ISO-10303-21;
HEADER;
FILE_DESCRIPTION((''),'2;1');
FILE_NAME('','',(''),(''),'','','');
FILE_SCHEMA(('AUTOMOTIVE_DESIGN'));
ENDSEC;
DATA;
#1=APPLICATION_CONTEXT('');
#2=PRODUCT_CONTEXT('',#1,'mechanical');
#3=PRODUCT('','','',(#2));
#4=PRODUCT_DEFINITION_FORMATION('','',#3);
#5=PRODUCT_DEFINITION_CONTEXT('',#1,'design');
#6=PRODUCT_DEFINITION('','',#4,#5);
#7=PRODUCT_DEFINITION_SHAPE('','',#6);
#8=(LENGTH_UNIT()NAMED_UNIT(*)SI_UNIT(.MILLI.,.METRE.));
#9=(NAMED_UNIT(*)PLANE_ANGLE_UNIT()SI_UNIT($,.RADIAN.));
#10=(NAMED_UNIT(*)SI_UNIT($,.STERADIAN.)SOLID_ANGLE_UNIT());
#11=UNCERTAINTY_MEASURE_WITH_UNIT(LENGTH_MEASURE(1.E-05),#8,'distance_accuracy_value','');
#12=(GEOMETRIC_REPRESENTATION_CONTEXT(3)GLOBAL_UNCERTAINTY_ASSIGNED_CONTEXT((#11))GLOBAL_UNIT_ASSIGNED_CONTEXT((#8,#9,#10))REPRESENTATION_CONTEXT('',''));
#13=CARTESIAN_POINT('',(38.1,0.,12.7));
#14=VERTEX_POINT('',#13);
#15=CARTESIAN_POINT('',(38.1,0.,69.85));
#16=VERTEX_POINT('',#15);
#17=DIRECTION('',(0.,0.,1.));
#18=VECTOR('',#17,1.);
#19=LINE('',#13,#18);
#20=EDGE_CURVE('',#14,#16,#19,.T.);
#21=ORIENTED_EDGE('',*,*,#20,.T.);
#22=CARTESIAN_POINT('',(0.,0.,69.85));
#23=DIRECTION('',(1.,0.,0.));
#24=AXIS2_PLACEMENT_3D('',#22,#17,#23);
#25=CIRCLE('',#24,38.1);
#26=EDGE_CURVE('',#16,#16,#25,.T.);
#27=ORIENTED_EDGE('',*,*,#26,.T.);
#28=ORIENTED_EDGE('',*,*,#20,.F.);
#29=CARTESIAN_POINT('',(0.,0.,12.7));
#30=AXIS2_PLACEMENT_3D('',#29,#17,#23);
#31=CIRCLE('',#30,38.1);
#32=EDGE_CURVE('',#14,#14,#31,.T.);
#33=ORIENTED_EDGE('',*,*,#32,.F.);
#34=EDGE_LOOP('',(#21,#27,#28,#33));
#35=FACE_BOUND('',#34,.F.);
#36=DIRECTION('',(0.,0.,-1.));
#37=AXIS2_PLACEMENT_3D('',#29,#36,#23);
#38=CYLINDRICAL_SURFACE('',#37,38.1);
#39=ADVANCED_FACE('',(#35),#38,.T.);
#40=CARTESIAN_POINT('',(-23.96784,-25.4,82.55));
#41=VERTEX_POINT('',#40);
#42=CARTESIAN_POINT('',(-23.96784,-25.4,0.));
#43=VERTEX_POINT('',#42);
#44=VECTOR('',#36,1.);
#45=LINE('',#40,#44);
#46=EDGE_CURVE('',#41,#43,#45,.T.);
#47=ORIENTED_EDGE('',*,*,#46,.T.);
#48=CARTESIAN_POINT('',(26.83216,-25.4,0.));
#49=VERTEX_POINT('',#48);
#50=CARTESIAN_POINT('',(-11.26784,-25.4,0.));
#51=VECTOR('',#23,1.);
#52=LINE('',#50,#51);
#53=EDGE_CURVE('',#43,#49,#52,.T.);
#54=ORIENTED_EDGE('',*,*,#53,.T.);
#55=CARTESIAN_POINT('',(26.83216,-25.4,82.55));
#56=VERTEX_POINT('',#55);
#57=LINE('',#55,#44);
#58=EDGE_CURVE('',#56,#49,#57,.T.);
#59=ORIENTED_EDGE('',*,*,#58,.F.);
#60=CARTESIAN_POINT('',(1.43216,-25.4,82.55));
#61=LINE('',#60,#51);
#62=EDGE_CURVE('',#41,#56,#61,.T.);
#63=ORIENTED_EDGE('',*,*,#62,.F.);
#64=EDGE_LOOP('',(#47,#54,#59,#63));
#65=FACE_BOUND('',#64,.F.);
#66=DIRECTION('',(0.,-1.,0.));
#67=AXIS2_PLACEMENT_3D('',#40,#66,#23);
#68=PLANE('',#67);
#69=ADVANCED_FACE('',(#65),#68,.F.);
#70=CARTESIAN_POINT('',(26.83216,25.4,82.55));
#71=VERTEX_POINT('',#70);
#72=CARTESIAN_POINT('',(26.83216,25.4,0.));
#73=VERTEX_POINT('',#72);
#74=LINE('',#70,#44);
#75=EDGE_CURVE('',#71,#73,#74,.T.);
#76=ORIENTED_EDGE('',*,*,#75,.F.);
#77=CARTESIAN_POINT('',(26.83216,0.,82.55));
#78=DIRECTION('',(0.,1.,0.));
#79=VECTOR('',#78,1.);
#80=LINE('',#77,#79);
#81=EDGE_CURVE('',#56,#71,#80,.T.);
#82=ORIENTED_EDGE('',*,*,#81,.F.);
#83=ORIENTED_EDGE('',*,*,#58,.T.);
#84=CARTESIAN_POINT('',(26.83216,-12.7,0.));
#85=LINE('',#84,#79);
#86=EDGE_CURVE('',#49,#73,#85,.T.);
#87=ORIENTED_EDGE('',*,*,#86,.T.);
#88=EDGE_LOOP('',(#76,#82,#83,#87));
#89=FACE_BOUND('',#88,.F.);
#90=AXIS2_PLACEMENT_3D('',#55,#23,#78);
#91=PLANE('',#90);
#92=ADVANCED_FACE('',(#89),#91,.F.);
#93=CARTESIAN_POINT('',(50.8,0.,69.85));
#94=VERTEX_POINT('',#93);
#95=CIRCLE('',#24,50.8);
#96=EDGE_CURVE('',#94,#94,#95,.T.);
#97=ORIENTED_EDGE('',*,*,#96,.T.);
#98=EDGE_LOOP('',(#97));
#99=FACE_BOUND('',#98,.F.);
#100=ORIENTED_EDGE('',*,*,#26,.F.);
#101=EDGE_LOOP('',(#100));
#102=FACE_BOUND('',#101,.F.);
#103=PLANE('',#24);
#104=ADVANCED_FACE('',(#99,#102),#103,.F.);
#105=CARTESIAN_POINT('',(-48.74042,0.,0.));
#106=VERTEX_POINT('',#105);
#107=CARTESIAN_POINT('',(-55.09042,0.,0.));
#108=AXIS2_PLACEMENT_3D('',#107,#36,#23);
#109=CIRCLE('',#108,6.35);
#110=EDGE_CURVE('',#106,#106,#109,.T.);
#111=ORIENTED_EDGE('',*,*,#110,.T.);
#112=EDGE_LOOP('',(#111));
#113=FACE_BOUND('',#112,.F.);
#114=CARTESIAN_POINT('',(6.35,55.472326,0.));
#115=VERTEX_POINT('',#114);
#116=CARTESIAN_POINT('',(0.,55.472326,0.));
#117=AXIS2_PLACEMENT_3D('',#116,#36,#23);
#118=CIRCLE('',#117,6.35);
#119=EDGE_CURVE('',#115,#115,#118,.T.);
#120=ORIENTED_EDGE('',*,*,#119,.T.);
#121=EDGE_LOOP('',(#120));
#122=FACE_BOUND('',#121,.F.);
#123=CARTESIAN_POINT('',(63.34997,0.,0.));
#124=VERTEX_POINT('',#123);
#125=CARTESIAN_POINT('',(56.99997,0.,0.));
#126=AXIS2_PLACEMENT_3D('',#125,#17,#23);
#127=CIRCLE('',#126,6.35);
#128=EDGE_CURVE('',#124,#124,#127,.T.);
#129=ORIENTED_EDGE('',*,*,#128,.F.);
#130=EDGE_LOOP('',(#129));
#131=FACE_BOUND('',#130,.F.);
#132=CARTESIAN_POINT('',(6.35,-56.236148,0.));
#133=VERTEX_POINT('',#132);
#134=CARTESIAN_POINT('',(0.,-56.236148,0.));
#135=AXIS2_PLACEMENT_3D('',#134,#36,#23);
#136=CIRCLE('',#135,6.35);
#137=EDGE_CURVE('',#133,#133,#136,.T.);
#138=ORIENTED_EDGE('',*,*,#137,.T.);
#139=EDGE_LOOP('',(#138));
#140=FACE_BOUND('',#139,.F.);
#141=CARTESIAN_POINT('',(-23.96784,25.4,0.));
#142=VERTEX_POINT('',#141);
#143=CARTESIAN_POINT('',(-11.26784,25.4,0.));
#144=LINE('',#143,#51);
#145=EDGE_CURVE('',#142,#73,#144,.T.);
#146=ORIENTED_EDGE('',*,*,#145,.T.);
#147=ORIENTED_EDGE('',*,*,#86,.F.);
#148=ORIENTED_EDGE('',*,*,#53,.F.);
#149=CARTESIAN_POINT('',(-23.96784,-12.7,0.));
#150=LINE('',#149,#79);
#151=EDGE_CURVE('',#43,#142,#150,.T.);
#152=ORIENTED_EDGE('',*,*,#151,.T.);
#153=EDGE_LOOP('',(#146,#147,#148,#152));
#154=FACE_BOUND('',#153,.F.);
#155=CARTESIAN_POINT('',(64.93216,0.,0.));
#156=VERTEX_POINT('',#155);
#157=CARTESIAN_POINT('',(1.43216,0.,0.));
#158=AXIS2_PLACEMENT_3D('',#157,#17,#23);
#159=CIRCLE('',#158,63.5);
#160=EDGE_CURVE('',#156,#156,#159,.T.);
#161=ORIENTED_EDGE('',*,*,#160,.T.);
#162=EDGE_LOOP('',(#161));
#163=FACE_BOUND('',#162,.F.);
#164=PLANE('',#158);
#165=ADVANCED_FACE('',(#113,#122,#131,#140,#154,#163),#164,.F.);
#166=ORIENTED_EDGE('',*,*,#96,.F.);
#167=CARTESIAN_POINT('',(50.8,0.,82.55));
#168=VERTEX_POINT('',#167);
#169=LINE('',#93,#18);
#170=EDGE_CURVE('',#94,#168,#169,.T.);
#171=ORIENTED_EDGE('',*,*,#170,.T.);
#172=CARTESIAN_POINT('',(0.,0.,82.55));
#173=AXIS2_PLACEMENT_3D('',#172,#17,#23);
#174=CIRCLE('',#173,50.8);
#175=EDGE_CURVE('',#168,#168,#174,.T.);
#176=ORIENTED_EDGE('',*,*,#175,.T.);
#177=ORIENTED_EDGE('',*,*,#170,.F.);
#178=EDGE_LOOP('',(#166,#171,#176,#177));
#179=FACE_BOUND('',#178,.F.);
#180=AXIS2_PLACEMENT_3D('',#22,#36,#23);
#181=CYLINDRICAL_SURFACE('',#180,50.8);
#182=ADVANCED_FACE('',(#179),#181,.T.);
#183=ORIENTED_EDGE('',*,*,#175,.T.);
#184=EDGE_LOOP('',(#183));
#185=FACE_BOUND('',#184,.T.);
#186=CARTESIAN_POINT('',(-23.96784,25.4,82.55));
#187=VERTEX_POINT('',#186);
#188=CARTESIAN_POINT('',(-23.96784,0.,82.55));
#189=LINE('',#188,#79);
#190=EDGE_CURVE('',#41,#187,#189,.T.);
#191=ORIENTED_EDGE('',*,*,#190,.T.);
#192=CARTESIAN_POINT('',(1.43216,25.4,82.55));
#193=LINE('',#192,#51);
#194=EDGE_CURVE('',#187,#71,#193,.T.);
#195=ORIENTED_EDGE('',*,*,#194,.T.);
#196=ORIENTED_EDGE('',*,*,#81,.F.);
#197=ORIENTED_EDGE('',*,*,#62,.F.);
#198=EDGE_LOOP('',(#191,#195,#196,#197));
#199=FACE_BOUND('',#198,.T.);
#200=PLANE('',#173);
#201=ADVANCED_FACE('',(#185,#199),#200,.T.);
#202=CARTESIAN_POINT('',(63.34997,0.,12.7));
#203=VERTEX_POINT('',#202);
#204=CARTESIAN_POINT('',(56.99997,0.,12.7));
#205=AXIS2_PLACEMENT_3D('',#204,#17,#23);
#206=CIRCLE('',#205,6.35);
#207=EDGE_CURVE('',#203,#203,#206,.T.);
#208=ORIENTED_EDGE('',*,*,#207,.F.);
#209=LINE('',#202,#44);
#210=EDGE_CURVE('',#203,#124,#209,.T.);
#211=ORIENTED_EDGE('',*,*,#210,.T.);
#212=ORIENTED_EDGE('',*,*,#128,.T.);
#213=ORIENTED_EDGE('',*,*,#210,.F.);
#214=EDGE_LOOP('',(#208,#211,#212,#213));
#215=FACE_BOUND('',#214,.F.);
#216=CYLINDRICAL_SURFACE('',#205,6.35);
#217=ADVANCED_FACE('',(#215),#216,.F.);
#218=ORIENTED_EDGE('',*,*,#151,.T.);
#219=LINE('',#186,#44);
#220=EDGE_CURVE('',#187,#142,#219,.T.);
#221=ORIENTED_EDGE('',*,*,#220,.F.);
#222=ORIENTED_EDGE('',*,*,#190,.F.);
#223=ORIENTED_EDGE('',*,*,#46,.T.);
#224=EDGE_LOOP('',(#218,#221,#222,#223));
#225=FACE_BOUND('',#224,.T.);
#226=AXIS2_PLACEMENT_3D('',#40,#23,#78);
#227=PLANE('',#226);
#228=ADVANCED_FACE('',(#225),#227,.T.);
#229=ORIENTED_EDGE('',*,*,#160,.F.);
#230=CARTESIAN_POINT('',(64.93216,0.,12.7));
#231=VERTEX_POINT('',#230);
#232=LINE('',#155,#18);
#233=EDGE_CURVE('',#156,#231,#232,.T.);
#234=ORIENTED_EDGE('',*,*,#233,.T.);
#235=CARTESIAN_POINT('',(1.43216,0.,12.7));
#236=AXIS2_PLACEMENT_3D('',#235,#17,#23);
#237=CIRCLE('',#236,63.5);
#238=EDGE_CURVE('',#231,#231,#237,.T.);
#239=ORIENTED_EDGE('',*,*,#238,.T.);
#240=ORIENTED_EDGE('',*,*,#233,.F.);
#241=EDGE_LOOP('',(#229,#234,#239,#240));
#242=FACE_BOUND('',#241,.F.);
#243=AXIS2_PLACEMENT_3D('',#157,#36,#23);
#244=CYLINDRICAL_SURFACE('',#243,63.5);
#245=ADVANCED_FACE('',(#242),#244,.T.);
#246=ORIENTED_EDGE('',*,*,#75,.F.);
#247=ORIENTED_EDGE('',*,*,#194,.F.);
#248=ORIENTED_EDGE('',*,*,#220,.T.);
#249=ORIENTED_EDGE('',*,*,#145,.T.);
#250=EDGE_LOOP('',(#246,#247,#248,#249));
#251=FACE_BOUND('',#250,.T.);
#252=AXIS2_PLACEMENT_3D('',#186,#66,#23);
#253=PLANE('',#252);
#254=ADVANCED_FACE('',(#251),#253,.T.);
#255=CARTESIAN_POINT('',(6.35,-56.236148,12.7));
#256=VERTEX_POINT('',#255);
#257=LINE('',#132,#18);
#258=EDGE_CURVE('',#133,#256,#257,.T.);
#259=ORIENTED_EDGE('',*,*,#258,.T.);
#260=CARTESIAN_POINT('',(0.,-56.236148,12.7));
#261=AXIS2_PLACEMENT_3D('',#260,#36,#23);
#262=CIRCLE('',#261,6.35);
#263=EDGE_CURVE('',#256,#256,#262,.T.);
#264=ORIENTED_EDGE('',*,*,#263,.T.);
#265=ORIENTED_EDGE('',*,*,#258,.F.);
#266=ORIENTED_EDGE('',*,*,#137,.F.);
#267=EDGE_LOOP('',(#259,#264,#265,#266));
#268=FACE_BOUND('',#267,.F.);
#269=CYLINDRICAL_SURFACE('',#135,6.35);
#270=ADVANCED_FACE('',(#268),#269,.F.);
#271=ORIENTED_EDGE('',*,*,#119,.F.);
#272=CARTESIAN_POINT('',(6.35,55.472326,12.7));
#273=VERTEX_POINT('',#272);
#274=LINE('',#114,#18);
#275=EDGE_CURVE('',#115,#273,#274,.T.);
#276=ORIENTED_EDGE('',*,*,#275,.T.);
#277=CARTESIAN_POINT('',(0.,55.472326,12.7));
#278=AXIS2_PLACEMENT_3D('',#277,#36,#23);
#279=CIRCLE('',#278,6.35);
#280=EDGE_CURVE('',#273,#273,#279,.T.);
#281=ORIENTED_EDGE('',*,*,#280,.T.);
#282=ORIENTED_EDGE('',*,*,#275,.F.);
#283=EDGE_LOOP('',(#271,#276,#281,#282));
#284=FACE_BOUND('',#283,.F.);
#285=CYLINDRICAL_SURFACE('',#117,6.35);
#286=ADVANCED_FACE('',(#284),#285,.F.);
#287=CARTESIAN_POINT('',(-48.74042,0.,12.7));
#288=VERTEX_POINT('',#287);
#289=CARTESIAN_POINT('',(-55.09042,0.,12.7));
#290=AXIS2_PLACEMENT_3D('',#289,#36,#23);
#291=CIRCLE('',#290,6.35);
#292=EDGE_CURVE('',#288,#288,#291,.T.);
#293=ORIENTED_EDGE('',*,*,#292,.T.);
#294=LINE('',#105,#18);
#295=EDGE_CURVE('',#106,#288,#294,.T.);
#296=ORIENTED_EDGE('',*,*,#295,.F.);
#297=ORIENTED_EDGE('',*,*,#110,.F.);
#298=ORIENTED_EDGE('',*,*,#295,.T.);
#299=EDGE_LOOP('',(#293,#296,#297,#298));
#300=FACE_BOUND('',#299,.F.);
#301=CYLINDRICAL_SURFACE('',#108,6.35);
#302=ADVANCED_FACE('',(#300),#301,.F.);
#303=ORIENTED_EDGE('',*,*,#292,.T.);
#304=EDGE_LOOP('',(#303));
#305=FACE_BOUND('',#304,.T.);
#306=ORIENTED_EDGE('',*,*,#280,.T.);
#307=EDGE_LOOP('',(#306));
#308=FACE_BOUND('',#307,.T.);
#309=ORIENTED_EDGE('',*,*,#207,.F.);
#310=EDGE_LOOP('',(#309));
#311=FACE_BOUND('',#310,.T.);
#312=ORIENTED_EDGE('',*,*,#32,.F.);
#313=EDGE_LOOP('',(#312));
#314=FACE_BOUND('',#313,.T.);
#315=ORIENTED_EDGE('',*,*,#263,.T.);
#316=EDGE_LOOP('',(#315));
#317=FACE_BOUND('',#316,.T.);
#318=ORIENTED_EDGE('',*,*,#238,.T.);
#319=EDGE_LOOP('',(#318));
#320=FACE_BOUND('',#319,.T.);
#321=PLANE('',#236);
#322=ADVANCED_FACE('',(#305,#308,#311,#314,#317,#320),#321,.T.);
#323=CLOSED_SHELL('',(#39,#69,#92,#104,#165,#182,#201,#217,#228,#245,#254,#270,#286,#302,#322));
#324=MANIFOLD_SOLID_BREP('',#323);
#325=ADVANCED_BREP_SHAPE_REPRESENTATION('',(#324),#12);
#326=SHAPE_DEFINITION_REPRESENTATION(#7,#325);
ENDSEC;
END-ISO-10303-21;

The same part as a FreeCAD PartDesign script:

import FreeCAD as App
import Part
import Sketcher

V = App.Vector
Q = App.Units.Quantity


def add_polygon(sketch, points):
    """Adds a closed chain of lines whose ends are joined by coincident constraints."""
    first, n = sketch.GeometryCount, len(points)
    for a, b in zip(points, points[1:] + points[:1]):
        sketch.addGeometry(Part.LineSegment(App.Vector(*a, 0), App.Vector(*b, 0)), False)
    for i in range(n):
        sketch.addConstraint(Sketcher.Constraint("Coincident", first + i, 2, first + (i + 1) % n, 1))

doc = App.newDocument("Part")
body = doc.addObject("PartDesign::Body", "Body")

# Sketch on XY plane
sketch1 = doc.addObject("Sketcher::SketchObject", "Sketch")
body.addObject(sketch1)
sketch1.AttachmentSupport = (doc.XY_Plane, [""])
sketch1.MapMode = "FlatFace"
sketch1.addGeometry(Part.Circle(V(1.43216, 0, 0), V(0, 0, 1), 63.5), False)
sketch1.addConstraint(Sketcher.Constraint("PointOnObject", 0, 3, -1))
sketch1.addConstraint(Sketcher.Constraint("Diameter", 0, Q("5 in")))
sketch1.addConstraint(Sketcher.Constraint("DistanceX", -1, 1, 0, 3, 1.43216))
pad1 = doc.addObject("PartDesign::Pad", "Pad")
body.addObject(pad1)
pad1.Profile = sketch1
pad1.Length = Q("0.5 in")

# Sketch on XY plane
sketch2 = doc.addObject("Sketcher::SketchObject", "Sketch001")
body.addObject(sketch2)
sketch2.AttachmentSupport = (doc.XY_Plane, [""])
sketch2.MapMode = "FlatFace"
sketch2.AttachmentOffset = App.Placement(V(0, 0, 0.5 * 25.4), App.Rotation())
sketch2.addGeometry(Part.Circle(V(0, 0, 0), V(0, 0, 1), 38.1), False)
sketch2.addConstraint(Sketcher.Constraint("Coincident", 0, 3, -1, 1))
sketch2.addConstraint(Sketcher.Constraint("Diameter", 0, Q("3 in")))
pad2 = doc.addObject("PartDesign::Pad", "Pad001")
body.addObject(pad2)
pad2.Profile = sketch2
pad2.Length = Q("2.25 in")

# Sketch on XY plane
sketch3 = doc.addObject("Sketcher::SketchObject", "Sketch002")
body.addObject(sketch3)
sketch3.AttachmentSupport = (doc.XY_Plane, [""])
sketch3.MapMode = "FlatFace"
sketch3.AttachmentOffset = App.Placement(V(0, 0, 2.75 * 25.4), App.Rotation())
sketch3.addGeometry(Part.Circle(V(0, 0, 0), V(0, 0, 1), 50.8), False)
sketch3.addConstraint(Sketcher.Constraint("Coincident", 0, 3, -1, 1))
sketch3.addConstraint(Sketcher.Constraint("Diameter", 0, Q("4 in")))
pad3 = doc.addObject("PartDesign::Pad", "Pad002")
body.addObject(pad3)
pad3.Profile = sketch3
pad3.Length = Q("0.5 in")

# Sketch on XY plane
sketch4 = doc.addObject("Sketcher::SketchObject", "Sketch003")
body.addObject(sketch4)
sketch4.AttachmentSupport = (doc.XY_Plane, [""])
sketch4.MapMode = "FlatFace"
sketch4.addGeometry(Part.Circle(V(0, 55.472326, 0), V(0, 0, 1), 6.35), False)
sketch4.addConstraint(Sketcher.Constraint("PointOnObject", 0, 3, -2))
sketch4.addConstraint(Sketcher.Constraint("Diameter", 0, Q("0.5 in")))
sketch4.addConstraint(Sketcher.Constraint("DistanceY", -1, 1, 0, 3, 55.472326))
pocket1 = doc.addObject("PartDesign::Pocket", "Pocket")
body.addObject(pocket1)
pocket1.Profile = sketch4
pocket1.Length = Q("1 in")
pocket1.Reversed = True

# Sketch on XY plane
sketch5 = doc.addObject("Sketcher::SketchObject", "Sketch004")
body.addObject(sketch5)
sketch5.AttachmentSupport = (doc.XY_Plane, [""])
sketch5.MapMode = "FlatFace"
sketch5.AttachmentOffset = App.Placement(V(0, 0, 0.5 * 25.4), App.Rotation())
sketch5.addGeometry(Part.Circle(V(56.99997, 0, 0), V(0, 0, 1), 6.35), False)
sketch5.addConstraint(Sketcher.Constraint("PointOnObject", 0, 3, -1))
sketch5.addConstraint(Sketcher.Constraint("Diameter", 0, Q("0.5 in")))
sketch5.addConstraint(Sketcher.Constraint("DistanceX", -1, 1, 0, 3, 56.99997))
pocket2 = doc.addObject("PartDesign::Pocket", "Pocket001")
body.addObject(pocket2)
pocket2.Profile = sketch5
pocket2.Length = Q("1 in")

# Sketch on XY plane
sketch6 = doc.addObject("Sketcher::SketchObject", "Sketch005")
body.addObject(sketch6)
sketch6.AttachmentSupport = (doc.XY_Plane, [""])
sketch6.MapMode = "FlatFace"
sketch6.addGeometry(Part.Circle(V(0, -56.236148, 0), V(0, 0, 1), 6.35), False)
sketch6.addConstraint(Sketcher.Constraint("PointOnObject", 0, 3, -2))
sketch6.addConstraint(Sketcher.Constraint("Diameter", 0, Q("0.5 in")))
sketch6.addConstraint(Sketcher.Constraint("DistanceY", 0, 3, -1, 1, 56.236148))
pocket3 = doc.addObject("PartDesign::Pocket", "Pocket002")
body.addObject(pocket3)
pocket3.Profile = sketch6
pocket3.Length = Q("1 in")
pocket3.Reversed = True

# Sketch on XY plane
sketch7 = doc.addObject("Sketcher::SketchObject", "Sketch006")
body.addObject(sketch7)
sketch7.AttachmentSupport = (doc.XY_Plane, [""])
sketch7.MapMode = "FlatFace"
sketch7.addGeometry(Part.Circle(V(-55.09042, 0, 0), V(0, 0, 1), 6.35), False)
sketch7.addConstraint(Sketcher.Constraint("PointOnObject", 0, 3, -1))
sketch7.addConstraint(Sketcher.Constraint("Diameter", 0, Q("0.5 in")))
sketch7.addConstraint(Sketcher.Constraint("DistanceX", 0, 3, -1, 1, 55.09042))
pocket4 = doc.addObject("PartDesign::Pocket", "Pocket003")
body.addObject(pocket4)
pocket4.Profile = sketch7
pocket4.Length = Q("1 in")
pocket4.Reversed = True

# Sketch on XY plane
sketch8 = doc.addObject("Sketcher::SketchObject", "Sketch007")
body.addObject(sketch8)
sketch8.AttachmentSupport = (doc.XY_Plane, [""])
sketch8.MapMode = "FlatFace"
sketch8.AttachmentOffset = App.Placement(V(0, 0, 3.25 * 25.4), App.Rotation())
add_polygon(sketch8, [(-23.96784, 25.4), (-23.96784, -25.4), (26.83216, -25.4), (26.83216, 25.4)])  # lines 0-3
sketch8.addConstraint(Sketcher.Constraint("Vertical", 0))
sketch8.addConstraint(Sketcher.Constraint("Horizontal", 1))
sketch8.addConstraint(Sketcher.Constraint("Vertical", 2))
sketch8.addConstraint(Sketcher.Constraint("Horizontal", 3))
sketch8.addConstraint(Sketcher.Constraint("Equal", 3, 0))
sketch8.addConstraint(Sketcher.Constraint("DistanceX", 1, 1, 1, 2, Q("2 in")))
sketch8.addConstraint(Sketcher.Constraint("DistanceY", 0, 2, -1, 1, Q("1 in")))
sketch8.addConstraint(Sketcher.Constraint("DistanceX", 0, 2, -1, 1, 23.96784))
pocket5 = doc.addObject("PartDesign::Pocket", "Pocket004")
body.addObject(pocket5)
pocket5.Profile = sketch8
pocket5.Length = Q("4 in")

doc.recompute()
